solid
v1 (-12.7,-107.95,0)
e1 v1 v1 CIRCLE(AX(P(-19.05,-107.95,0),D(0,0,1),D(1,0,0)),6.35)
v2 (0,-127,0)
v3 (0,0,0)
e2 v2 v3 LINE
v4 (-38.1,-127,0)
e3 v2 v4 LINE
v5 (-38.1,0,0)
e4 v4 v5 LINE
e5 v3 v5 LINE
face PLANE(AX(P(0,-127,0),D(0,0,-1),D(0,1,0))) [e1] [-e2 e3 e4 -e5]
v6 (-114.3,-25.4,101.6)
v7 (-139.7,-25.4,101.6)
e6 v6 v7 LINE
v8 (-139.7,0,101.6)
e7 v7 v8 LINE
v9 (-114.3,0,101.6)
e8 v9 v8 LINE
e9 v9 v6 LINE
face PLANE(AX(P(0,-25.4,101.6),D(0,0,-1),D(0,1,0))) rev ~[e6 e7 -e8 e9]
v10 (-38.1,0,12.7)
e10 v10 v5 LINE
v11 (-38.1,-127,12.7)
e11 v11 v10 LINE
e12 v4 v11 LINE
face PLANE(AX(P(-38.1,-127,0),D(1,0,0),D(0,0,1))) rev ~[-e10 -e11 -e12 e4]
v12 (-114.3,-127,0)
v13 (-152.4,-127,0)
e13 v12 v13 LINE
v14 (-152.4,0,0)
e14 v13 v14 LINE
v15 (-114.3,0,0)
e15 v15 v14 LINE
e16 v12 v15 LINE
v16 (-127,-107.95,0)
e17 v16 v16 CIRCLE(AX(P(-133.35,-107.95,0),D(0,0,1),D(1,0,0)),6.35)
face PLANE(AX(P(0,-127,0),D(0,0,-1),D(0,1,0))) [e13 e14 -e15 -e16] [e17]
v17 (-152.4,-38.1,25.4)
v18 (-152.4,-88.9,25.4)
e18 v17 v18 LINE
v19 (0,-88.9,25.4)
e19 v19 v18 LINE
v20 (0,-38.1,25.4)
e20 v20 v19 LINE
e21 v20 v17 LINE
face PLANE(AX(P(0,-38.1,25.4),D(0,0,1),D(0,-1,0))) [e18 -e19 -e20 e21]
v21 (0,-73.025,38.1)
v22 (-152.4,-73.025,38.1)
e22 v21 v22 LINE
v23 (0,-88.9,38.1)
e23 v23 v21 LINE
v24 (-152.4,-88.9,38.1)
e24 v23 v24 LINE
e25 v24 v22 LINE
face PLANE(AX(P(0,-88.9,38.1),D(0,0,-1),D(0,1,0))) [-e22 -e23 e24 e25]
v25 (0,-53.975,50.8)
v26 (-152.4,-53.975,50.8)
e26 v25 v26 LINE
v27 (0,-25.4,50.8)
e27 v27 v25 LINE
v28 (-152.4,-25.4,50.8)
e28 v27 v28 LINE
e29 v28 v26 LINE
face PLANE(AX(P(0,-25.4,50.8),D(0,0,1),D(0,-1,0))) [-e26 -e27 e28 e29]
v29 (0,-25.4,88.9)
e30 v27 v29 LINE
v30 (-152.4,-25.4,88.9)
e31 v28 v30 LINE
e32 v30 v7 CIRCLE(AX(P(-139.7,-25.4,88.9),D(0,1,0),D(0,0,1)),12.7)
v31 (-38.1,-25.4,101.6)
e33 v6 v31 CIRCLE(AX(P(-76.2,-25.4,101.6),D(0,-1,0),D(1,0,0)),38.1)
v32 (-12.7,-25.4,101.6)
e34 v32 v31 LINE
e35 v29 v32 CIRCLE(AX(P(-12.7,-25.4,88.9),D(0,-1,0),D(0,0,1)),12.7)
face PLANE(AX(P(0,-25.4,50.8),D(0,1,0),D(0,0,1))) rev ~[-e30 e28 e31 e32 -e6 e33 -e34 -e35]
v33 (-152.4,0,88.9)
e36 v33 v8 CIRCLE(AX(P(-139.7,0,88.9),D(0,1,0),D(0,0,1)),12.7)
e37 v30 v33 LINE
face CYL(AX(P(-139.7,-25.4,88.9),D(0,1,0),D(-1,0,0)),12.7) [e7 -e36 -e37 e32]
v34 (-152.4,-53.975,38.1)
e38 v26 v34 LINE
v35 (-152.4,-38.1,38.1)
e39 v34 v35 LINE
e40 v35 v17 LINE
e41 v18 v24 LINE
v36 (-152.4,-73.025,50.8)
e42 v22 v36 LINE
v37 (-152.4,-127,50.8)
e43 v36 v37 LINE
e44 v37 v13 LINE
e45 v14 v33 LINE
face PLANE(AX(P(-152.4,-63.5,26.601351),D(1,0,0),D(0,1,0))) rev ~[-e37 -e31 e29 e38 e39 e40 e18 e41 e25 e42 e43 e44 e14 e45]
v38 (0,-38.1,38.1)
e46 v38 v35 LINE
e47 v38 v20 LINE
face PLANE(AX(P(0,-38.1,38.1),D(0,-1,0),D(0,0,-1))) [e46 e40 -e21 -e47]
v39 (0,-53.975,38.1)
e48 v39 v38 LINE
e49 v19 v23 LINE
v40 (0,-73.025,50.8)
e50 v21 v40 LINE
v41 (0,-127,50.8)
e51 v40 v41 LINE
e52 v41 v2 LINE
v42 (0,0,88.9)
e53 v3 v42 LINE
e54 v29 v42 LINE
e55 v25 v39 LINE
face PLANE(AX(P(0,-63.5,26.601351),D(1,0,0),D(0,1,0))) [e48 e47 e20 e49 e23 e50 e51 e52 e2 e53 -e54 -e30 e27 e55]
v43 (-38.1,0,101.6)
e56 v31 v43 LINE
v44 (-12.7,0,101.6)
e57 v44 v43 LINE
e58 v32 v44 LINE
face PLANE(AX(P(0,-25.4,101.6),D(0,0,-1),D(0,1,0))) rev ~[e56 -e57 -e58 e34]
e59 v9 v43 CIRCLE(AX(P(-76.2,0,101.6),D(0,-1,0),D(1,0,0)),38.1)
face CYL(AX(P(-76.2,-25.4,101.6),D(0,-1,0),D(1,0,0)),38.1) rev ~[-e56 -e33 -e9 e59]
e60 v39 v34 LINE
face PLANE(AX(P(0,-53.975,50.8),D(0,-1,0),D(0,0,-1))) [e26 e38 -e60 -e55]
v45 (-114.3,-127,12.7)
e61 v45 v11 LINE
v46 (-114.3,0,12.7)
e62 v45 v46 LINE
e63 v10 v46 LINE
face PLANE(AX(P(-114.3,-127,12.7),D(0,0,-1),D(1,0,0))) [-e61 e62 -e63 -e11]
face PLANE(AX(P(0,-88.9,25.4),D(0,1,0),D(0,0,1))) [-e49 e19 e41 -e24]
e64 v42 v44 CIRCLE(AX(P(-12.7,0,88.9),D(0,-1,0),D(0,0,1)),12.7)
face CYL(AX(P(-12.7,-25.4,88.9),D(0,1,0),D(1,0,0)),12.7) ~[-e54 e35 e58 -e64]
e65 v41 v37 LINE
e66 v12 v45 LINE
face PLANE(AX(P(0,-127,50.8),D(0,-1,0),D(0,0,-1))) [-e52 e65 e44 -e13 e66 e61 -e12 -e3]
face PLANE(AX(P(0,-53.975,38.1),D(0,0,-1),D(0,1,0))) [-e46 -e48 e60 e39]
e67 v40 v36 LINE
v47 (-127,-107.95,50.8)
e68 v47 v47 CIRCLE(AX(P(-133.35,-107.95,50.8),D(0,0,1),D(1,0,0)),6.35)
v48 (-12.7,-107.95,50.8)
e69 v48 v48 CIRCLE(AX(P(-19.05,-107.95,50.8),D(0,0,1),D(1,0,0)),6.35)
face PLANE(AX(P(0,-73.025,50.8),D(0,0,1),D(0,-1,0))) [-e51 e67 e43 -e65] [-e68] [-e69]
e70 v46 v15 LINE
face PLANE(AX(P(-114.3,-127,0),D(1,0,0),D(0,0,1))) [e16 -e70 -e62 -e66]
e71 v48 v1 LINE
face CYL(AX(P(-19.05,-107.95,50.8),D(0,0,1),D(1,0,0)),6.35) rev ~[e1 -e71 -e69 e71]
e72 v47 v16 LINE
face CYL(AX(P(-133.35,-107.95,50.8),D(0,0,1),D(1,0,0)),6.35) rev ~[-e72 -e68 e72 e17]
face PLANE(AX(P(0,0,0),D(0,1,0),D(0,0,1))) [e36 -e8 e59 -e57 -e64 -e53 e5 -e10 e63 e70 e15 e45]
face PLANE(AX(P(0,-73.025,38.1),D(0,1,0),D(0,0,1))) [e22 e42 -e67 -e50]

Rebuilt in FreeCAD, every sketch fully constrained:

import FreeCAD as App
import Part
import Sketcher
from FreeCAD import Vector
Q = App.Units.Quantity


def edges_at(feature, points):
    """Names of the edges that pass closest to the given points."""
    edges = feature.Shape.Edges
    near = lambda p: min(range(len(edges)), key=lambda i: edges[i].distToShape(Part.Vertex(*p))[0])
    return sorted({f"Edge{near(p) + 1}" for p in points})


def add_polygon(sketch, points):
    """Adds a closed chain of lines whose ends are joined by coincident constraints."""
    first, n = sketch.GeometryCount, len(points)
    for a, b in zip(points, points[1:] + points[:1]):
        sketch.addGeometry(Part.LineSegment(App.Vector(*a, 0), App.Vector(*b, 0)), False)
    for i in range(n):
        sketch.addConstraint(Sketcher.Constraint("Coincident", first + i, 2, first + (i + 1) % n, 1))

doc = App.newDocument("Part")
body = doc.addObject("PartDesign::Body", "Body")

sketch1 = doc.addObject("Sketcher::SketchObject", "Sketch")
body.addObject(sketch1)
sketch1.AttachmentSupport = (doc.YZ_Plane, [""])
sketch1.MapMode = "FlatFace"
add_polygon(sketch1, [(-73, 51), (-127, 51), (-127, 0), (0, 0), (0, 102), (-25, 102), (-25, 51), (-54, 51), (-54, 38), (-38, 38), (-38, 25), (-89, 25), (-89, 38), (-73, 38)])
sketch1.addConstraint(Sketcher.Constraint("Horizontal", 0))
sketch1.addConstraint(Sketcher.Constraint("Vertical", 1))
sketch1.addConstraint(Sketcher.Constraint("Horizontal", 2))
sketch1.addConstraint(Sketcher.Constraint("Vertical", 3))
sketch1.addConstraint(Sketcher.Constraint("Horizontal", 4))
sketch1.addConstraint(Sketcher.Constraint("Vertical", 5))
sketch1.addConstraint(Sketcher.Constraint("Horizontal", 6))
sketch1.addConstraint(Sketcher.Constraint("Vertical", 7))
sketch1.addConstraint(Sketcher.Constraint("Horizontal", 8))
sketch1.addConstraint(Sketcher.Constraint("Vertical", 9))
sketch1.addConstraint(Sketcher.Constraint("Horizontal", 10))
sketch1.addConstraint(Sketcher.Constraint("Vertical", 11))
sketch1.addConstraint(Sketcher.Constraint("Horizontal", 12))
sketch1.addConstraint(Sketcher.Constraint("Vertical", 13))
sketch1.addConstraint(Sketcher.Constraint("Coincident", 2, 2, -1, 1))
sketch1.addConstraint(Sketcher.Constraint("Horizontal", 0, 2, 5, 2))
sketch1.addConstraint(Sketcher.Constraint("Horizontal", 8, 2, 11, 2))
sketch1.addConstraint(Sketcher.Constraint("Equal", 8, 12))
sketch1.addConstraint(Sketcher.Constraint("Equal", 10, 1))
sketch1.addConstraint(Sketcher.Constraint("Equal", 1, 5))
sketch1.addConstraint(Sketcher.Constraint("Equal", 7, 9))
sketch1.addConstraint(Sketcher.Constraint("DistanceX", 2, 1, 2, 2, Q("5 in")))
sketch1.addConstraint(Sketcher.Constraint("DistanceX", 4, 2, 4, 1, Q("1 in")))
sketch1.addConstraint(Sketcher.Constraint("DistanceX", 10, 2, 10, 1, Q("2 in")))
sketch1.addConstraint(Sketcher.Constraint("DistanceY", 7, 2, 7, 1, Q("0.5 in")))
sketch1.addConstraint(Sketcher.Constraint("DistanceX", 8, 2, -1, 1, Q("1.5 in")))
sketch1.addConstraint(Sketcher.Constraint("DistanceX", 0, 2, 0, 1, Q("2.125 in")))
pad1 = doc.addObject("PartDesign::Pad", "Pad")
body.addObject(pad1)
pad1.Profile = sketch1
pad1.Length = Q("6 in")
pad1.Reversed = True

sketch2 = doc.addObject("Sketcher::SketchObject", "Sketch001")
body.addObject(sketch2)
sketch2.AttachmentSupport = (doc.XZ_Plane, [""])
sketch2.MapMode = "FlatFace"
sketch2.AttachmentOffset = App.Placement(Vector(0, 0, 5 * 25.4), App.Rotation())
add_polygon(sketch2, [(-114, 13), (-114, 0), (-38, 0), (-38, 13)])
sketch2.addConstraint(Sketcher.Constraint("Vertical", 0))
sketch2.addConstraint(Sketcher.Constraint("Horizontal", 1))
sketch2.addConstraint(Sketcher.Constraint("Vertical", 2))
sketch2.addConstraint(Sketcher.Constraint("Horizontal", 3))
sketch2.addConstraint(Sketcher.Constraint("PointOnObject", 0, 2, -1))
sketch2.addConstraint(Sketcher.Constraint("DistanceX", 1, 1, 1, 2, Q("3 in")))
sketch2.addConstraint(Sketcher.Constraint("DistanceY", 0, 2, 0, 1, Q("0.5 in")))
sketch2.addConstraint(Sketcher.Constraint("DistanceX", 0, 2, -1, 1, Q("4.5 in")))
pocket1 = doc.addObject("PartDesign::Pocket", "Pocket")
body.addObject(pocket1)
pocket1.Profile = sketch2
pocket1.Type = "ThroughAll"
doc.recompute()

fillet = doc.addObject("PartDesign::Fillet", "Fillet")
body.addObject(fillet)
fillet.Base = (pocket1, edges_at(pocket1, [(0, -12.7, 101.6), (-152.4, -12.7, 101.6)]))
fillet.Radius = Q("0.5 in")

sketch3 = doc.addObject("Sketcher::SketchObject", "Sketch002")
body.addObject(sketch3)
sketch3.AttachmentSupport = (doc.XY_Plane, [""])
sketch3.MapMode = "FlatFace"
sketch3.AttachmentOffset = App.Placement(Vector(0, 0, 2 * 25.4), App.Rotation())
sketch3.addGeometry(Part.Circle(Vector(-133, -108, 0), Vector(0, 0, 1), 6), False)
sketch3.addGeometry(Part.Circle(Vector(-19, -108, 0), Vector(0, 0, 1), 6), False)
sketch3.addConstraint(Sketcher.Constraint("Equal", 0, 1))
sketch3.addConstraint(Sketcher.Constraint("Horizontal", 0, 3, 1, 3))
sketch3.addConstraint(Sketcher.Constraint("Diameter", 0, Q("0.5 in")))
sketch3.addConstraint(Sketcher.Constraint("DistanceX", 0, 3, 1, 3, Q("4.5 in")))
sketch3.addConstraint(Sketcher.Constraint("DistanceX", 0, 3, -1, 1, Q("5.25 in")))
sketch3.addConstraint(Sketcher.Constraint("DistanceY", 0, 3, -1, 1, Q("4.25 in")))
pocket2 = doc.addObject("PartDesign::Pocket", "Pocket001")
body.addObject(pocket2)
pocket2.Profile = sketch3
pocket2.Type = "ThroughAll"

sketch4 = doc.addObject("Sketcher::SketchObject", "Sketch003")
body.addObject(sketch4)
sketch4.AttachmentSupport = (doc.XZ_Plane, [""])
sketch4.MapMode = "FlatFace"
sketch4.AttachmentOffset = App.Placement(Vector(0, 0, 1 * 25.4), App.Rotation())
sketch4.addGeometry(Part.Circle(Vector(-76, 102, 0), Vector(0, 0, 1), 38), False)
sketch4.addConstraint(Sketcher.Constraint("Diameter", 0, Q("3 in")))
sketch4.addConstraint(Sketcher.Constraint("DistanceX", 0, 3, -1, 1, Q("3 in")))
sketch4.addConstraint(Sketcher.Constraint("DistanceY", -1, 1, 0, 3, Q("4 in")))
pocket3 = doc.addObject("PartDesign::Pocket", "Pocket002")
body.addObject(pocket3)
pocket3.Profile = sketch4
pocket3.Type = "ThroughAll"

doc.recompute()
